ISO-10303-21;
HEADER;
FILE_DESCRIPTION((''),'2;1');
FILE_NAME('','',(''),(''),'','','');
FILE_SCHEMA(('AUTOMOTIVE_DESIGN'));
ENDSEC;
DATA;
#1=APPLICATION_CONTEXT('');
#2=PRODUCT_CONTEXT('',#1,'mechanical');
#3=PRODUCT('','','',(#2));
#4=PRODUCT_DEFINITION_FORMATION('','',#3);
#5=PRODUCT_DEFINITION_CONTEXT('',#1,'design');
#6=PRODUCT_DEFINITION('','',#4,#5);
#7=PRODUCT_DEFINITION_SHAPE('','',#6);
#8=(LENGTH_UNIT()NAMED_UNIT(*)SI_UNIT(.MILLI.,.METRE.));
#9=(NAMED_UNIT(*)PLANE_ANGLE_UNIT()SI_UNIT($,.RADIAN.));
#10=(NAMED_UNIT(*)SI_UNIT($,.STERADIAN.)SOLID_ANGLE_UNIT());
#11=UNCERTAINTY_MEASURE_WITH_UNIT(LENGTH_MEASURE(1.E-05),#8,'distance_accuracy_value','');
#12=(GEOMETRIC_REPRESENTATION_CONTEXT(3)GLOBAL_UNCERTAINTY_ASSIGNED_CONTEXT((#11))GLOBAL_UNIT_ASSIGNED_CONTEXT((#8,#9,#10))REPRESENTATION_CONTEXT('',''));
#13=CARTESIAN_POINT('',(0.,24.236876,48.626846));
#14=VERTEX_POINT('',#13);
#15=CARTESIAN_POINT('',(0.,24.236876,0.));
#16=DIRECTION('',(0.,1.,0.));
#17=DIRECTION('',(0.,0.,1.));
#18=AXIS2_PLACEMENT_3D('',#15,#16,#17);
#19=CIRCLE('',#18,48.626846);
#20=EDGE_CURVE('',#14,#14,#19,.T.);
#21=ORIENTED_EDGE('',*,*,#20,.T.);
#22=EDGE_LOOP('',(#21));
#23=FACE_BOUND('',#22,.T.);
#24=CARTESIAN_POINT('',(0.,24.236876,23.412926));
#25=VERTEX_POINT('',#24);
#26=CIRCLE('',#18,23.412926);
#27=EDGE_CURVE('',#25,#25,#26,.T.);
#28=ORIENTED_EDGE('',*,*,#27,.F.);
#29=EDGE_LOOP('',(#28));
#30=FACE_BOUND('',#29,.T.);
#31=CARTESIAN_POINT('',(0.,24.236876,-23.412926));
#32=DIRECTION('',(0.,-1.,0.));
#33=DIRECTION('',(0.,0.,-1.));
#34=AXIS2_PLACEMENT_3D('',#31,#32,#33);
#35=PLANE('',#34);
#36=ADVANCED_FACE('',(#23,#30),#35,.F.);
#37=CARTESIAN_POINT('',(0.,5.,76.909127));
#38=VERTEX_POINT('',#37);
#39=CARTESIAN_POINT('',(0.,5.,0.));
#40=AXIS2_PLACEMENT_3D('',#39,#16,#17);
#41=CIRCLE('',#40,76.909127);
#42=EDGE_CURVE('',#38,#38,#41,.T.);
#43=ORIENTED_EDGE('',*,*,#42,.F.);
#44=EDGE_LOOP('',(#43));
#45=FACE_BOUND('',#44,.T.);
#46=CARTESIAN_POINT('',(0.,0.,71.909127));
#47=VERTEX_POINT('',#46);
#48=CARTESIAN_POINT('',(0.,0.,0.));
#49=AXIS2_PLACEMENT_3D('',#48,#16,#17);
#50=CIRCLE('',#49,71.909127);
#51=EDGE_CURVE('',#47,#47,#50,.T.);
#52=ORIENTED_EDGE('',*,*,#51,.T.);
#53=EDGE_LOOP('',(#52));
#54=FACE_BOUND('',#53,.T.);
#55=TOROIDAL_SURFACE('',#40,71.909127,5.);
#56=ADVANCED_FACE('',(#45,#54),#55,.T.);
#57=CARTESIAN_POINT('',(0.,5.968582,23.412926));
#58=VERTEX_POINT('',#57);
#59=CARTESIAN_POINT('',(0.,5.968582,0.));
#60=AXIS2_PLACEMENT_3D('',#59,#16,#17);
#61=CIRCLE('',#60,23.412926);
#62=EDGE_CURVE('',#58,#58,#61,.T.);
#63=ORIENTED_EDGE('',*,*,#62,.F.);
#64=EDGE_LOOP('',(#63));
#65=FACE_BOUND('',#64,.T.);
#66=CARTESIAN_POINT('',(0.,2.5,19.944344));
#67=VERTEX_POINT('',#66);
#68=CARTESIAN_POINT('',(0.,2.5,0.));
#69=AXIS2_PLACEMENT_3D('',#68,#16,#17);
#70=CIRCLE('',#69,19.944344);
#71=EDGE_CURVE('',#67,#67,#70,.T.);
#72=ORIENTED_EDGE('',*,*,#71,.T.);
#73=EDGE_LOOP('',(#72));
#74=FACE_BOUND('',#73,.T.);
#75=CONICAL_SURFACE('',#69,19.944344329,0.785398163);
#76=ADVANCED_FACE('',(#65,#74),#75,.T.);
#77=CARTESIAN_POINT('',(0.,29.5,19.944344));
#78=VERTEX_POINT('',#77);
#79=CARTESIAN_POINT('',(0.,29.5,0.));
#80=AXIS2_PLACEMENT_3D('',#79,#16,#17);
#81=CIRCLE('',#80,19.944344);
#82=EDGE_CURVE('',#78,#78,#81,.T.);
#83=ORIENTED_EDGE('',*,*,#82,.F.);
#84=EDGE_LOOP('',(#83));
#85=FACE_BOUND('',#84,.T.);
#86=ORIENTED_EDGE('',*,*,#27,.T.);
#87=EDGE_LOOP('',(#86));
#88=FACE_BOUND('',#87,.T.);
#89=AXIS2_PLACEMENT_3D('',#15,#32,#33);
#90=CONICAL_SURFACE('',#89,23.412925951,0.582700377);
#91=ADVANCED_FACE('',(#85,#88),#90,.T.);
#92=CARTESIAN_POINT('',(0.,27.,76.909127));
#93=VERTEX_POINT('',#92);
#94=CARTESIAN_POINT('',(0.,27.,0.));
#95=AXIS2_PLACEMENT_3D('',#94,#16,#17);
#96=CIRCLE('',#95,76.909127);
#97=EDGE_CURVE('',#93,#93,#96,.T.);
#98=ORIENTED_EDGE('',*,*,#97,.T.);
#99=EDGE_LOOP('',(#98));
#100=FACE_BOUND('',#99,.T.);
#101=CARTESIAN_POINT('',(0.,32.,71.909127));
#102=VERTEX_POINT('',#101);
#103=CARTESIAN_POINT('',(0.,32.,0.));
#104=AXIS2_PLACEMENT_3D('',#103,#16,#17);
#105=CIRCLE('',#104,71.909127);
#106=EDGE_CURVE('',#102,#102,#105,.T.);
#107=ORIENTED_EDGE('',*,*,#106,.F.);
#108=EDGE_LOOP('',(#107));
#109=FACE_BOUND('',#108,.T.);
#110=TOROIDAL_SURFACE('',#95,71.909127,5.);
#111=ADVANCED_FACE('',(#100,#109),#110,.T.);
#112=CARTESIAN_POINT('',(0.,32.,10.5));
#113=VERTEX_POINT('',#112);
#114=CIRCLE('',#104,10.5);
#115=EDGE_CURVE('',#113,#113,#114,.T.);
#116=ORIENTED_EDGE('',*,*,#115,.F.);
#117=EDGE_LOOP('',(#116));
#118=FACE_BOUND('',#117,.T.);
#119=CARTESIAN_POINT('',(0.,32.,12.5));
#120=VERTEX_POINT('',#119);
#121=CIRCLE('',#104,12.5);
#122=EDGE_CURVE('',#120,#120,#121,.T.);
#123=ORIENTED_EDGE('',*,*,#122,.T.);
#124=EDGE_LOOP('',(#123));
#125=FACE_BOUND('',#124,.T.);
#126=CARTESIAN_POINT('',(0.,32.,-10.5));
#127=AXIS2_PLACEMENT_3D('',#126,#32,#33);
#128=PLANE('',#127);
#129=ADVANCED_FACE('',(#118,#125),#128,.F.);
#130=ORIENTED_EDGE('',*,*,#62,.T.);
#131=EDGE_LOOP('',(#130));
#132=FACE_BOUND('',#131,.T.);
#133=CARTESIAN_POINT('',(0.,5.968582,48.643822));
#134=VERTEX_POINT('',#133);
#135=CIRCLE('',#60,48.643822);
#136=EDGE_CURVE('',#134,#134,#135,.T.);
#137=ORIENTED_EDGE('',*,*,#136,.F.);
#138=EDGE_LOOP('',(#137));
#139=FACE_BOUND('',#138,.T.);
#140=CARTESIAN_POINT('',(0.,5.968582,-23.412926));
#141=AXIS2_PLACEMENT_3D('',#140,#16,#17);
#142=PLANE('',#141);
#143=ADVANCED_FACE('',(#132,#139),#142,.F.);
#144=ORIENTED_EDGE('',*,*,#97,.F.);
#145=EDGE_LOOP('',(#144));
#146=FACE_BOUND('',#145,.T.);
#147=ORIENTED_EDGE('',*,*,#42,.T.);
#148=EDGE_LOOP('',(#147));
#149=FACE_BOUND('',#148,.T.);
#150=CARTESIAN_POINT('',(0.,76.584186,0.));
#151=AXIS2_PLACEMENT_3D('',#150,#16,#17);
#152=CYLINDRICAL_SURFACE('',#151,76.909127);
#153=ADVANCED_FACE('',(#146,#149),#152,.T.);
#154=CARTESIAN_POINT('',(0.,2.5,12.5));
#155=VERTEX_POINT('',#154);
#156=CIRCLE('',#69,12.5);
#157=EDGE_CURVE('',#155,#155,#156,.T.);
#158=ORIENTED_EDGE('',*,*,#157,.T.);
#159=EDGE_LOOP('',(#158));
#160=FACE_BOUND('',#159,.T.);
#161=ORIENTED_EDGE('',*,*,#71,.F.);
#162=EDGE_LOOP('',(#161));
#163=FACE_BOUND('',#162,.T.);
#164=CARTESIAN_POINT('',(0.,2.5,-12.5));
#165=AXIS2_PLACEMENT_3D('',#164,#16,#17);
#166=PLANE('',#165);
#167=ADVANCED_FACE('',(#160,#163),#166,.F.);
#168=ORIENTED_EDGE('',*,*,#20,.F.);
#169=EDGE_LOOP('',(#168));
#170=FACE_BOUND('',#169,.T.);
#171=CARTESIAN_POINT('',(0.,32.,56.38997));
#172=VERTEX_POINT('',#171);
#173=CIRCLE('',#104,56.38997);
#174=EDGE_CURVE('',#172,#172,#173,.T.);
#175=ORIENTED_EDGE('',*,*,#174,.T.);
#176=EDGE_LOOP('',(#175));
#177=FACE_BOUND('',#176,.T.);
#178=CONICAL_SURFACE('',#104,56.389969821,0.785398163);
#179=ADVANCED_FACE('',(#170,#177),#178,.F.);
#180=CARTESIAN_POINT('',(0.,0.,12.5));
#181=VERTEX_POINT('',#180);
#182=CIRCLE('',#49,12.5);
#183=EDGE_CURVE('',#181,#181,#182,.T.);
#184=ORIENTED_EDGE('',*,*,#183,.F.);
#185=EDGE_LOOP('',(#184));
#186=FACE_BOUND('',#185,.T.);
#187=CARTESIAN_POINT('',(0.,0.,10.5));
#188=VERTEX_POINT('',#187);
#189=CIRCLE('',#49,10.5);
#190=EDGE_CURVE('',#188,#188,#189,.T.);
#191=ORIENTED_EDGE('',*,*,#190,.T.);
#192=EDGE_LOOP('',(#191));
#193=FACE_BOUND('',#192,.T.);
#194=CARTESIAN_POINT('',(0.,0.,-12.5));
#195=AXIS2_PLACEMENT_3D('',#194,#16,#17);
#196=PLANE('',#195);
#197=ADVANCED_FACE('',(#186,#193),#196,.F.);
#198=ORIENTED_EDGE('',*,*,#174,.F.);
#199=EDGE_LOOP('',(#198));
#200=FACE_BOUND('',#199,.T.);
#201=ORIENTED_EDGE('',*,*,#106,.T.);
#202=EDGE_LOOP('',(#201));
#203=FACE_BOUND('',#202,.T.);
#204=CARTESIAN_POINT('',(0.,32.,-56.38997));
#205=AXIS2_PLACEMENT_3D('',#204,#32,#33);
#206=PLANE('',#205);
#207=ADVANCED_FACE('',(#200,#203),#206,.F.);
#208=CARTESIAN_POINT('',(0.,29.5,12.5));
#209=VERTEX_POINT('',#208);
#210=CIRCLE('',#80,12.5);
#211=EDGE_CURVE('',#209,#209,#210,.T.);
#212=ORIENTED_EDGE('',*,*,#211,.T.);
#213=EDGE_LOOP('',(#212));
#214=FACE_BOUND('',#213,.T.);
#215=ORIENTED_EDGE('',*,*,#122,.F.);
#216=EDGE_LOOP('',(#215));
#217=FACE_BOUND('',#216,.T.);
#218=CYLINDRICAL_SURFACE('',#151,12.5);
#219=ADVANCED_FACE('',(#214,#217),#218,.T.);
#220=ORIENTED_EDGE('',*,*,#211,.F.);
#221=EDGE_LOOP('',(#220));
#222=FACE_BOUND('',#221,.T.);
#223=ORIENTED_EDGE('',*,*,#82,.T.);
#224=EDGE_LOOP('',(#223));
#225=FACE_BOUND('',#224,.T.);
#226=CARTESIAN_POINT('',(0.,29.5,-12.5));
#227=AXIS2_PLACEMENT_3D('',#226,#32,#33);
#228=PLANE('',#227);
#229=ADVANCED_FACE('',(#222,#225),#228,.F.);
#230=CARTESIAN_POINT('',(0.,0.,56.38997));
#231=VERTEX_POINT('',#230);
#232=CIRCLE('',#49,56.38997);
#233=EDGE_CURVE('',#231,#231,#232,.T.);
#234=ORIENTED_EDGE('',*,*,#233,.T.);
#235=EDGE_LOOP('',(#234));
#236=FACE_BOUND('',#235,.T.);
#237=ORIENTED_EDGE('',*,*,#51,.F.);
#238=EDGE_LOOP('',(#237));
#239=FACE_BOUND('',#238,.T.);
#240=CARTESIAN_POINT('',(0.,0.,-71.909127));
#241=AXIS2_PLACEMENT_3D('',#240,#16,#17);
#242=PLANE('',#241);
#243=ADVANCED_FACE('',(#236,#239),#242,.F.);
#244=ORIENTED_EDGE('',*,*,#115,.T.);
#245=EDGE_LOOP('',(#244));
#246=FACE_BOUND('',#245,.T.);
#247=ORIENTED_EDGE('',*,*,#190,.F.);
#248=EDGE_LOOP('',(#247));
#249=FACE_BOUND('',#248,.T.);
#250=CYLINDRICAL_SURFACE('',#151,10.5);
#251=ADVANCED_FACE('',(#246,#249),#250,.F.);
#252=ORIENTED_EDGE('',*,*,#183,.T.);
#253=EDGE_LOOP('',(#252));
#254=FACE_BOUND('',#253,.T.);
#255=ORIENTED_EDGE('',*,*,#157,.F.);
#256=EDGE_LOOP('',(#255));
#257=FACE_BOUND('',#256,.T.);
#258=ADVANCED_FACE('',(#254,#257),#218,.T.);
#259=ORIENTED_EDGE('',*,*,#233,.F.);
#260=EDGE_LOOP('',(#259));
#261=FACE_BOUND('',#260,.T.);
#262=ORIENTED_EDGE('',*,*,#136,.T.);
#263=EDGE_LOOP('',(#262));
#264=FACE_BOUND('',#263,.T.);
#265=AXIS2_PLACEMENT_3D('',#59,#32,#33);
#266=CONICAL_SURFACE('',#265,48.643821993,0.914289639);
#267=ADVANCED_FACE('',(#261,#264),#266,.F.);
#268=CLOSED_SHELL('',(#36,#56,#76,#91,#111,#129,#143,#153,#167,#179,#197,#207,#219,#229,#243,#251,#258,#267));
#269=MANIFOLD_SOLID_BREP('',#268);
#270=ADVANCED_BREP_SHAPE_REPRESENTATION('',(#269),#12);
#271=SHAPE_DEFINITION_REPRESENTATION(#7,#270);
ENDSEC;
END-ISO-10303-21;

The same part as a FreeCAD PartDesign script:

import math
import FreeCAD as App
import Part
import Sketcher
from FreeCAD import Vector
Q = App.Units.Quantity

doc = App.newDocument("Part")
params = doc.addObject("Spreadsheet::Sheet", "Params")
for row, (alias, value) in enumerate([
    ("sketch1_radius", "5 mm"),
    ("sketch1_width", "32 mm"),
    ("sketch1_height", "2 mm"),
    ("sketch1_width2", "2.5 mm"),
    ("revolution_angle", "360 deg"),
], start=1):
    params.set(f"A{row}", alias)
    params.set(f"B{row}", "=" + value)
    params.setAlias(f"B{row}", alias)

body = doc.addObject("PartDesign::Body", "Body")

sketch1 = doc.addObject("Sketcher::SketchObject", "Sketch")
body.addObject(sketch1)
sketch1.AttachmentSupport = (doc.YZ_Plane, [""])
sketch1.MapMode = "FlatFace"
sketch1.addGeometry(Part.LineSegment(Vector(32, -10.5, 0), Vector(0, -10.5, 0)), False)
sketch1.addGeometry(Part.LineSegment(Vector(0, -10.5, 0), Vector(0, -12.5, 0)), False)
sketch1.addGeometry(Part.LineSegment(Vector(0, -12.5, 0), Vector(2.5, -12.5, 0)), False)
sketch1.addGeometry(Part.LineSegment(Vector(2.5, -12.5, 0), Vector(2.5, -19.9, 0)), False)
sketch1.addGeometry(Part.LineSegment(Vector(2.5, -19.9, 0), Vector(6, -23.4, 0)), False)
sketch1.addGeometry(Part.LineSegment(Vector(6, -23.4, 0), Vector(6, -48.6, 0)), False)
sketch1.addGeometry(Part.LineSegment(Vector(6, -48.6, 0), Vector(0, -56.4, 0)), False)
sketch1.addGeometry(Part.LineSegment(Vector(0, -56.4, 0), Vector(0, -71.9, 0)), False)
sketch1.addGeometry(Part.ArcOfCircle(Part.Circle(Vector(5, -71.9, 0), Vector(0, 0, 1), 5), math.radians(-180), math.radians(-90)), False)
sketch1.addGeometry(Part.LineSegment(Vector(5, -76.9, 0), Vector(27, -76.9, 0)), False)
sketch1.addGeometry(Part.ArcOfCircle(Part.Circle(Vector(27, -71.9, 0), Vector(0, 0, 1), 5), math.radians(-90), math.radians(0)), False)
sketch1.addGeometry(Part.LineSegment(Vector(32, -71.9, 0), Vector(32, -56.4, 0)), False)
sketch1.addGeometry(Part.LineSegment(Vector(32, -56.4, 0), Vector(24.2, -48.6, 0)), False)
sketch1.addGeometry(Part.LineSegment(Vector(24.2, -48.6, 0), Vector(24.2, -23.4, 0)), False)
sketch1.addGeometry(Part.LineSegment(Vector(24.2, -23.4, 0), Vector(29.5, -19.9, 0)), False)
sketch1.addGeometry(Part.LineSegment(Vector(29.5, -19.9, 0), Vector(29.5, -12.5, 0)), False)
sketch1.addGeometry(Part.LineSegment(Vector(29.5, -12.5, 0), Vector(32, -12.5, 0)), False)
sketch1.addGeometry(Part.LineSegment(Vector(32, -12.5, 0), Vector(32, -10.5, 0)), False)
sketch1.addConstraint(Sketcher.Constraint("Coincident", 0, 2, 1, 1))
sketch1.addConstraint(Sketcher.Constraint("Coincident", 1, 2, 2, 1))
sketch1.addConstraint(Sketcher.Constraint("Coincident", 2, 2, 3, 1))
sketch1.addConstraint(Sketcher.Constraint("Coincident", 3, 2, 4, 1))
sketch1.addConstraint(Sketcher.Constraint("Coincident", 4, 2, 5, 1))
sketch1.addConstraint(Sketcher.Constraint("Coincident", 5, 2, 6, 1))
sketch1.addConstraint(Sketcher.Constraint("Coincident", 6, 2, 7, 1))
sketch1.addConstraint(Sketcher.Constraint("Tangent", 7, 2, 8, 1))
sketch1.addConstraint(Sketcher.Constraint("Tangent", 8, 2, 9, 1))
sketch1.addConstraint(Sketcher.Constraint("Tangent", 9, 2, 10, 1))
sketch1.addConstraint(Sketcher.Constraint("Tangent", 10, 2, 11, 1))
sketch1.addConstraint(Sketcher.Constraint("Coincident", 11, 2, 12, 1))
sketch1.addConstraint(Sketcher.Constraint("Coincident", 12, 2, 13, 1))
sketch1.addConstraint(Sketcher.Constraint("Coincident", 13, 2, 14, 1))
sketch1.addConstraint(Sketcher.Constraint("Coincident", 14, 2, 15, 1))
sketch1.addConstraint(Sketcher.Constraint("Coincident", 15, 2, 16, 1))
sketch1.addConstraint(Sketcher.Constraint("Coincident", 16, 2, 17, 1))
sketch1.addConstraint(Sketcher.Constraint("Coincident", 17, 2, 0, 1))
sketch1.addConstraint(Sketcher.Constraint("Horizontal", 0))
sketch1.addConstraint(Sketcher.Constraint("Vertical", 1))
sketch1.addConstraint(Sketcher.Constraint("Horizontal", 2))
sketch1.addConstraint(Sketcher.Constraint("Vertical", 3))
sketch1.addConstraint(Sketcher.Constraint("Vertical", 5))
sketch1.addConstraint(Sketcher.Constraint("Vertical", 7))
sketch1.addConstraint(Sketcher.Constraint("Horizontal", 9))
sketch1.addConstraint(Sketcher.Constraint("Vertical", 11))
sketch1.addConstraint(Sketcher.Constraint("Vertical", 13))
sketch1.addConstraint(Sketcher.Constraint("Vertical", 15))
sketch1.addConstraint(Sketcher.Constraint("Horizontal", 16))
sketch1.addConstraint(Sketcher.Constraint("Vertical", 17))
sketch1.addConstraint(Sketcher.Constraint("Equal", 8, 10))
sketch1.addConstraint(Sketcher.Constraint("PointOnObject", 0, 2, -2))
sketch1.addConstraint(Sketcher.Constraint("PointOnObject", 6, 2, -2))
sketch1.addConstraint(Sketcher.Constraint("Parallel", 4, 12))
sketch1.addConstraint(Sketcher.Constraint("Horizontal", 6, 2, 11, 2))
sketch1.addConstraint(Sketcher.Constraint("Horizontal", 4, 2, 13, 2))
sketch1.addConstraint(Sketcher.Constraint("Horizontal", 3, 2, 14, 2))
sketch1.addConstraint(Sketcher.Constraint("Horizontal", 2, 2, 15, 2))
sketch1.addConstraint(Sketcher.Constraint("Vertical", 11, 2, 16, 2))
sketch1.addConstraint(Sketcher.Constraint("Equal", 2, 16))
sketch1.addConstraint(Sketcher.Constraint("Radius", 8, 5.0))
sketch1.addConstraint(Sketcher.Constraint("DistanceX", 0, 2, 0, 1, 32.0))
sketch1.addConstraint(Sketcher.Constraint("DistanceY", 1, 2, 1, 1, 2.0))
sketch1.addConstraint(Sketcher.Constraint("Angle", 4, Q("-45 deg")))
sketch1.addConstraint(Sketcher.Constraint("DistanceX", 2, 1, 2, 2, 2.5))
sketch1.addConstraint(Sketcher.Constraint("DistanceY", 0, 2, -1, 1, 10.5))
sketch1.addConstraint(Sketcher.Constraint("DistanceY", 13, 1, 13, 2, 25.21392))
sketch1.addConstraint(Sketcher.Constraint("DistanceY", 8, 3, 4, 2, 48.496201))
sketch1.addConstraint(Sketcher.Constraint("DistanceY", 12, 2, 14, 2, 28.682502))
sketch1.addConstraint(Sketcher.Constraint("DistanceY", 3, 2, 3, 1, 7.444344))
sketch1.addConstraint(Sketcher.Constraint("DistanceY", 5, 2, 5, 1, 25.230896))
sketch1.addConstraint(Sketcher.Constraint("DistanceY", 7, 2, 7, 1, 15.519157))
sketch1.setExpression("Constraints[40]", "Params.sketch1_radius")
sketch1.setExpression("Constraints[41]", "Params.sketch1_width")
sketch1.setExpression("Constraints[42]", "Params.sketch1_height")
sketch1.setExpression("Constraints[44]", "Params.sketch1_width2")
revolution = doc.addObject("PartDesign::Revolution", "Revolution")
body.addObject(revolution)
revolution.Profile = sketch1
revolution.ReferenceAxis = (sketch1, ["H_Axis"])
revolution.setExpression("Angle", "Params.revolution_angle")

doc.recompute()
